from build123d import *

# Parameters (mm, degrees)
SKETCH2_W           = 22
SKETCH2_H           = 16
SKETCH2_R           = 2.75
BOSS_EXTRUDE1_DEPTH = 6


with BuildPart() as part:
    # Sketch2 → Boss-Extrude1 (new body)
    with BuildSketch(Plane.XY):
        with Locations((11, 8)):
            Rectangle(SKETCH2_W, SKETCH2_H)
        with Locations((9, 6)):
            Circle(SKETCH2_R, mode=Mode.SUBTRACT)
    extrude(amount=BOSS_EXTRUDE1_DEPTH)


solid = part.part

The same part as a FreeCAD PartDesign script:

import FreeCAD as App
import Part
import Sketcher

doc = App.newDocument("Part")
params = doc.addObject("Spreadsheet::Sheet", "Params")
for row, (alias, value) in enumerate([
    ("sketch1_diameter", "5.5 mm"),
    ("sketch1_width", "22 mm"),
    ("sketch1_height", "16 mm"),
    ("pad1_length", "6 mm"),
], start=1):
    params.set(f"A{row}", alias)
    params.set(f"B{row}", "=" + value)
    params.setAlias(f"B{row}", alias)

body = doc.addObject("PartDesign::Body", "Body")

sketch1 = body.newObject("Sketcher::SketchObject", "Sketch")
sketch1.AttachmentSupport = (doc.getObject("XY_Plane"), [""])
sketch1.MapMode = "FlatFace"
sketch1.addGeometry(Part.LineSegment(App.Vector(0, 16, 0), App.Vector(0, 0, 0)), False)
sketch1.addGeometry(Part.LineSegment(App.Vector(0, 0, 0), App.Vector(22, 0, 0)), False)
sketch1.addGeometry(Part.LineSegment(App.Vector(22, 0, 0), App.Vector(22, 16, 0)), False)
sketch1.addGeometry(Part.LineSegment(App.Vector(22, 16, 0), App.Vector(0, 16, 0)), False)
sketch1.addGeometry(Part.Circle(App.Vector(9, 6, 0), App.Vector(0, 0, 1), 2.75), False)
sketch1.addConstraint(Sketcher.Constraint("Coincident", 0, 2, 1, 1))
sketch1.addConstraint(Sketcher.Constraint("Coincident", 1, 2, 2, 1))
sketch1.addConstraint(Sketcher.Constraint("Coincident", 2, 2, 3, 1))
sketch1.addConstraint(Sketcher.Constraint("Coincident", 3, 2, 0, 1))
sketch1.addConstraint(Sketcher.Constraint("Vertical", 0))
sketch1.addConstraint(Sketcher.Constraint("Horizontal", 1))
sketch1.addConstraint(Sketcher.Constraint("Vertical", 2))
sketch1.addConstraint(Sketcher.Constraint("Horizontal", 3))
sketch1.addConstraint(Sketcher.Constraint("Coincident", 0, 2, -1, 1))
sketch1.addConstraint(Sketcher.Constraint("Diameter", 4, 5.5))
sketch1.addConstraint(Sketcher.Constraint("DistanceX", 1, 1, 1, 2, 22.0))
sketch1.addConstraint(Sketcher.Constraint("DistanceY", 0, 2, 0, 1, 16.0))
sketch1.addConstraint(Sketcher.Constraint("DistanceX", -1, 1, 4, 3, 9.0))
sketch1.addConstraint(Sketcher.Constraint("DistanceY", -1, 1, 4, 3, 6.0))
sketch1.setExpression("Constraints[9]", "Params.sketch1_diameter")
sketch1.setExpression("Constraints[10]", "Params.sketch1_width")
sketch1.setExpression("Constraints[11]", "Params.sketch1_height")
pad1 = body.newObject("PartDesign::Pad", "Pad")
pad1.Profile = sketch1
pad1.setExpression("Length", "Params.pad1_length")

doc.recompute()
